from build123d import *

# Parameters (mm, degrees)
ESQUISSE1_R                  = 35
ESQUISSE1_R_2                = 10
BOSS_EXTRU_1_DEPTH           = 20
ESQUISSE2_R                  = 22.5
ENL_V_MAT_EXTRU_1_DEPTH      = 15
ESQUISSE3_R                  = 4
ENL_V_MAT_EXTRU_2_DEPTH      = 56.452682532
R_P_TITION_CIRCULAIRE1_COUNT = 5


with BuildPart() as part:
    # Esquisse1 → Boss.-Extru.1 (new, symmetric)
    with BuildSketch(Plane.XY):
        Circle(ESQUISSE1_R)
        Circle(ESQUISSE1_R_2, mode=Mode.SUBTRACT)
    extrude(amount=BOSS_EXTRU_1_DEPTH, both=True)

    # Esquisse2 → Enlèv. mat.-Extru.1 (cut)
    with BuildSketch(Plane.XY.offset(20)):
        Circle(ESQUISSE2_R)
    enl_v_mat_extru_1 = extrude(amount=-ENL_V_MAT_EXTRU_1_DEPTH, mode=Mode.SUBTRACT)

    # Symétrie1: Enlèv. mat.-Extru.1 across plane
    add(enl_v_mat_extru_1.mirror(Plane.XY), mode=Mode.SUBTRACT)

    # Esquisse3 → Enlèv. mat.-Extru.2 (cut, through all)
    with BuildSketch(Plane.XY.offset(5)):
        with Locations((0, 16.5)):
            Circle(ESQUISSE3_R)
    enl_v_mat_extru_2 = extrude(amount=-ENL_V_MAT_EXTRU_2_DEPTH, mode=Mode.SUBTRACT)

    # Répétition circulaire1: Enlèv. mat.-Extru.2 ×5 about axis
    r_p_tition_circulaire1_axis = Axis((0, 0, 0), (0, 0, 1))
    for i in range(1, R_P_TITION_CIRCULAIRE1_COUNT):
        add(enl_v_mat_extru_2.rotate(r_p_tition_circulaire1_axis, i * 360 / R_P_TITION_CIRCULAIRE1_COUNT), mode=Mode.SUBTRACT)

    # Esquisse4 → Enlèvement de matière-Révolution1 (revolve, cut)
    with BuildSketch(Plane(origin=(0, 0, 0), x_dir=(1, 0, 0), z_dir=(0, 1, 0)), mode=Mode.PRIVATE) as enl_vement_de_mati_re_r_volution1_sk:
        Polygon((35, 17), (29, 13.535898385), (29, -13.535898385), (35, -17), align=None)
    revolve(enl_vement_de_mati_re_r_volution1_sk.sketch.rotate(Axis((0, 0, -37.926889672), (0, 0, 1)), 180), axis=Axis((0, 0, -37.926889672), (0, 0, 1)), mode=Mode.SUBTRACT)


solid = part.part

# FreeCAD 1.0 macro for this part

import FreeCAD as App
import Part
import Sketcher

V = App.Vector
Q = App.Units.Quantity


def add_polygon(sketch, points):
    """Adds a closed chain of lines whose ends are joined by coincident constraints."""
    first, n = sketch.GeometryCount, len(points)
    for a, b in zip(points, points[1:] + points[:1]):
        sketch.addGeometry(Part.LineSegment(App.Vector(*a, 0), App.Vector(*b, 0)), False)
    for i in range(n):
        sketch.addConstraint(Sketcher.Constraint("Coincident", first + i, 2, first + (i + 1) % n, 1))

doc = App.newDocument("Part")
params = doc.addObject("Spreadsheet::Sheet", "Params")
for row, (alias, value) in enumerate([
    ("sketch1_diameter", "70 mm"),
    ("sketch1_diameter2", "20 mm"),
    ("pad1_length", "40 mm"),
    ("sketch2_diameter", "45 mm"),
    ("pocket1_length", "15 mm"),
    ("sketch3_diameter", "8 mm"),
    ("sketch4_height", "34 mm"),
    ("groove_angle", "360 deg"),
], start=1):
    params.set(f"A{row}", alias)
    params.set(f"B{row}", "=" + value)
    params.setAlias(f"B{row}", alias)

body = doc.addObject("PartDesign::Body", "Body")

# Sketch on XY plane
sketch1 = body.newObject("Sketcher::SketchObject", "Sketch")
sketch1.AttachmentSupport = (doc.getObject("XY_Plane"), [""])
sketch1.MapMode = "FlatFace"
sketch1.addGeometry([
    Part.Circle(V(0, 0, 0), V(0, 0, 1), 35),
    Part.Circle(V(0, 0, 0), V(0, 0, 1), 10),
], False)
sketch1.addConstraint([
    Sketcher.Constraint("Coincident", 0, 3, -1, 1),
    Sketcher.Constraint("Coincident", 1, 3, -1, 1),
    Sketcher.Constraint("Diameter", 0, Q("70 mm")),
    Sketcher.Constraint("Diameter", 1, Q("20 mm")),
])
sketch1.setExpression("Constraints[2]", "Params.sketch1_diameter")
sketch1.setExpression("Constraints[3]", "Params.sketch1_diameter2")
pad1 = body.newObject("PartDesign::Pad", "Pad")
pad1.Profile = sketch1
pad1.setExpression("Length", "Params.pad1_length")
pad1.Midplane = True

# Sketch on XY plane
sketch2 = body.newObject("Sketcher::SketchObject", "Sketch001")
sketch2.AttachmentSupport = (doc.getObject("XY_Plane"), [""])
sketch2.MapMode = "FlatFace"
sketch2.AttachmentOffset = App.Placement(V(0, 0, 20), App.Rotation())
sketch2.addGeometry(Part.Circle(V(0, 0, 0), V(0, 0, 1), 22), False)
sketch2.addConstraint([
    Sketcher.Constraint("Coincident", 0, 3, -1, 1),
    Sketcher.Constraint("Diameter", 0, Q("45 mm")),
])
sketch2.setExpression("Constraints[1]", "Params.sketch2_diameter")
pocket1 = body.newObject("PartDesign::Pocket", "Pocket")
pocket1.Profile = sketch2
pocket1.setExpression("Length", "Params.pocket1_length")
doc.recompute()

mirrored = body.newObject("PartDesign::Mirrored", "Mirrored")
mirrored.Originals = [pocket1]
mirrored.MirrorPlane = (doc.getObject("XY_Plane"), [""])
body.Tip = mirrored

# Sketch on XY plane
sketch3 = body.newObject("Sketcher::SketchObject", "Sketch002")
sketch3.AttachmentSupport = (doc.getObject("XY_Plane"), [""])
sketch3.MapMode = "FlatFace"
sketch3.AttachmentOffset = App.Placement(V(0, 0, 5), App.Rotation())
sketch3.addGeometry(Part.Circle(V(0, 16.5, 0), V(0, 0, 1), 4), False)
sketch3.addConstraint([
    Sketcher.Constraint("PointOnObject", 0, 3, -2),
    Sketcher.Constraint("Diameter", 0, Q("8 mm")),
    Sketcher.Constraint("DistanceY", -1, 1, 0, 3, Q("16.5 mm")),
])
sketch3.setExpression("Constraints[1]", "Params.sketch3_diameter")
pocket2 = body.newObject("PartDesign::Pocket", "Pocket001")
pocket2.Profile = sketch3
pocket2.Type = "ThroughAll"
doc.recompute()

polarpattern = body.newObject("PartDesign::PolarPattern", "PolarPattern")
polarpattern.Originals = [pocket2]
polarpattern.Axis = (doc.getObject("Z_Axis"), [""])
polarpattern.Angle = 360
polarpattern.Occurrences = 5
body.Tip = polarpattern

# Sketch on XZ plane
sketch4 = body.newObject("Sketcher::SketchObject", "Sketch003")
sketch4.AttachmentSupport = (doc.getObject("XZ_Plane"), [""])
sketch4.MapMode = "FlatFace"
add_polygon(sketch4, [(35, -17), (29, -14), (29, 14), (35, 17)])  # lines 0-3
sketch4.addConstraint([
    Sketcher.Constraint("Vertical", 1),
    Sketcher.Constraint("Vertical", 3),
    Sketcher.Constraint("Equal", 0, 2),
    Sketcher.Constraint("DistanceY", 3, 2, 3, 1, Q("34 mm")),
    Sketcher.Constraint("Angle", 0, Q("150 deg")),
    Sketcher.Constraint("DistanceX", -1, 1, 0, 2, Q("29 mm")),
    Sketcher.Constraint("DistanceX", -1, 1, 2, 2, Q("35 mm")),
    Sketcher.Constraint("DistanceY", -1, 1, 2, 2, Q("17 mm")),
])
sketch4.setExpression("Constraints[7]", "Params.sketch4_height")
groove = body.newObject("PartDesign::Groove", "Groove")
groove.Profile = sketch4
groove.ReferenceAxis = (sketch4, ["V_Axis"])
groove.setExpression("Angle", "Params.groove_angle")

doc.recompute()
